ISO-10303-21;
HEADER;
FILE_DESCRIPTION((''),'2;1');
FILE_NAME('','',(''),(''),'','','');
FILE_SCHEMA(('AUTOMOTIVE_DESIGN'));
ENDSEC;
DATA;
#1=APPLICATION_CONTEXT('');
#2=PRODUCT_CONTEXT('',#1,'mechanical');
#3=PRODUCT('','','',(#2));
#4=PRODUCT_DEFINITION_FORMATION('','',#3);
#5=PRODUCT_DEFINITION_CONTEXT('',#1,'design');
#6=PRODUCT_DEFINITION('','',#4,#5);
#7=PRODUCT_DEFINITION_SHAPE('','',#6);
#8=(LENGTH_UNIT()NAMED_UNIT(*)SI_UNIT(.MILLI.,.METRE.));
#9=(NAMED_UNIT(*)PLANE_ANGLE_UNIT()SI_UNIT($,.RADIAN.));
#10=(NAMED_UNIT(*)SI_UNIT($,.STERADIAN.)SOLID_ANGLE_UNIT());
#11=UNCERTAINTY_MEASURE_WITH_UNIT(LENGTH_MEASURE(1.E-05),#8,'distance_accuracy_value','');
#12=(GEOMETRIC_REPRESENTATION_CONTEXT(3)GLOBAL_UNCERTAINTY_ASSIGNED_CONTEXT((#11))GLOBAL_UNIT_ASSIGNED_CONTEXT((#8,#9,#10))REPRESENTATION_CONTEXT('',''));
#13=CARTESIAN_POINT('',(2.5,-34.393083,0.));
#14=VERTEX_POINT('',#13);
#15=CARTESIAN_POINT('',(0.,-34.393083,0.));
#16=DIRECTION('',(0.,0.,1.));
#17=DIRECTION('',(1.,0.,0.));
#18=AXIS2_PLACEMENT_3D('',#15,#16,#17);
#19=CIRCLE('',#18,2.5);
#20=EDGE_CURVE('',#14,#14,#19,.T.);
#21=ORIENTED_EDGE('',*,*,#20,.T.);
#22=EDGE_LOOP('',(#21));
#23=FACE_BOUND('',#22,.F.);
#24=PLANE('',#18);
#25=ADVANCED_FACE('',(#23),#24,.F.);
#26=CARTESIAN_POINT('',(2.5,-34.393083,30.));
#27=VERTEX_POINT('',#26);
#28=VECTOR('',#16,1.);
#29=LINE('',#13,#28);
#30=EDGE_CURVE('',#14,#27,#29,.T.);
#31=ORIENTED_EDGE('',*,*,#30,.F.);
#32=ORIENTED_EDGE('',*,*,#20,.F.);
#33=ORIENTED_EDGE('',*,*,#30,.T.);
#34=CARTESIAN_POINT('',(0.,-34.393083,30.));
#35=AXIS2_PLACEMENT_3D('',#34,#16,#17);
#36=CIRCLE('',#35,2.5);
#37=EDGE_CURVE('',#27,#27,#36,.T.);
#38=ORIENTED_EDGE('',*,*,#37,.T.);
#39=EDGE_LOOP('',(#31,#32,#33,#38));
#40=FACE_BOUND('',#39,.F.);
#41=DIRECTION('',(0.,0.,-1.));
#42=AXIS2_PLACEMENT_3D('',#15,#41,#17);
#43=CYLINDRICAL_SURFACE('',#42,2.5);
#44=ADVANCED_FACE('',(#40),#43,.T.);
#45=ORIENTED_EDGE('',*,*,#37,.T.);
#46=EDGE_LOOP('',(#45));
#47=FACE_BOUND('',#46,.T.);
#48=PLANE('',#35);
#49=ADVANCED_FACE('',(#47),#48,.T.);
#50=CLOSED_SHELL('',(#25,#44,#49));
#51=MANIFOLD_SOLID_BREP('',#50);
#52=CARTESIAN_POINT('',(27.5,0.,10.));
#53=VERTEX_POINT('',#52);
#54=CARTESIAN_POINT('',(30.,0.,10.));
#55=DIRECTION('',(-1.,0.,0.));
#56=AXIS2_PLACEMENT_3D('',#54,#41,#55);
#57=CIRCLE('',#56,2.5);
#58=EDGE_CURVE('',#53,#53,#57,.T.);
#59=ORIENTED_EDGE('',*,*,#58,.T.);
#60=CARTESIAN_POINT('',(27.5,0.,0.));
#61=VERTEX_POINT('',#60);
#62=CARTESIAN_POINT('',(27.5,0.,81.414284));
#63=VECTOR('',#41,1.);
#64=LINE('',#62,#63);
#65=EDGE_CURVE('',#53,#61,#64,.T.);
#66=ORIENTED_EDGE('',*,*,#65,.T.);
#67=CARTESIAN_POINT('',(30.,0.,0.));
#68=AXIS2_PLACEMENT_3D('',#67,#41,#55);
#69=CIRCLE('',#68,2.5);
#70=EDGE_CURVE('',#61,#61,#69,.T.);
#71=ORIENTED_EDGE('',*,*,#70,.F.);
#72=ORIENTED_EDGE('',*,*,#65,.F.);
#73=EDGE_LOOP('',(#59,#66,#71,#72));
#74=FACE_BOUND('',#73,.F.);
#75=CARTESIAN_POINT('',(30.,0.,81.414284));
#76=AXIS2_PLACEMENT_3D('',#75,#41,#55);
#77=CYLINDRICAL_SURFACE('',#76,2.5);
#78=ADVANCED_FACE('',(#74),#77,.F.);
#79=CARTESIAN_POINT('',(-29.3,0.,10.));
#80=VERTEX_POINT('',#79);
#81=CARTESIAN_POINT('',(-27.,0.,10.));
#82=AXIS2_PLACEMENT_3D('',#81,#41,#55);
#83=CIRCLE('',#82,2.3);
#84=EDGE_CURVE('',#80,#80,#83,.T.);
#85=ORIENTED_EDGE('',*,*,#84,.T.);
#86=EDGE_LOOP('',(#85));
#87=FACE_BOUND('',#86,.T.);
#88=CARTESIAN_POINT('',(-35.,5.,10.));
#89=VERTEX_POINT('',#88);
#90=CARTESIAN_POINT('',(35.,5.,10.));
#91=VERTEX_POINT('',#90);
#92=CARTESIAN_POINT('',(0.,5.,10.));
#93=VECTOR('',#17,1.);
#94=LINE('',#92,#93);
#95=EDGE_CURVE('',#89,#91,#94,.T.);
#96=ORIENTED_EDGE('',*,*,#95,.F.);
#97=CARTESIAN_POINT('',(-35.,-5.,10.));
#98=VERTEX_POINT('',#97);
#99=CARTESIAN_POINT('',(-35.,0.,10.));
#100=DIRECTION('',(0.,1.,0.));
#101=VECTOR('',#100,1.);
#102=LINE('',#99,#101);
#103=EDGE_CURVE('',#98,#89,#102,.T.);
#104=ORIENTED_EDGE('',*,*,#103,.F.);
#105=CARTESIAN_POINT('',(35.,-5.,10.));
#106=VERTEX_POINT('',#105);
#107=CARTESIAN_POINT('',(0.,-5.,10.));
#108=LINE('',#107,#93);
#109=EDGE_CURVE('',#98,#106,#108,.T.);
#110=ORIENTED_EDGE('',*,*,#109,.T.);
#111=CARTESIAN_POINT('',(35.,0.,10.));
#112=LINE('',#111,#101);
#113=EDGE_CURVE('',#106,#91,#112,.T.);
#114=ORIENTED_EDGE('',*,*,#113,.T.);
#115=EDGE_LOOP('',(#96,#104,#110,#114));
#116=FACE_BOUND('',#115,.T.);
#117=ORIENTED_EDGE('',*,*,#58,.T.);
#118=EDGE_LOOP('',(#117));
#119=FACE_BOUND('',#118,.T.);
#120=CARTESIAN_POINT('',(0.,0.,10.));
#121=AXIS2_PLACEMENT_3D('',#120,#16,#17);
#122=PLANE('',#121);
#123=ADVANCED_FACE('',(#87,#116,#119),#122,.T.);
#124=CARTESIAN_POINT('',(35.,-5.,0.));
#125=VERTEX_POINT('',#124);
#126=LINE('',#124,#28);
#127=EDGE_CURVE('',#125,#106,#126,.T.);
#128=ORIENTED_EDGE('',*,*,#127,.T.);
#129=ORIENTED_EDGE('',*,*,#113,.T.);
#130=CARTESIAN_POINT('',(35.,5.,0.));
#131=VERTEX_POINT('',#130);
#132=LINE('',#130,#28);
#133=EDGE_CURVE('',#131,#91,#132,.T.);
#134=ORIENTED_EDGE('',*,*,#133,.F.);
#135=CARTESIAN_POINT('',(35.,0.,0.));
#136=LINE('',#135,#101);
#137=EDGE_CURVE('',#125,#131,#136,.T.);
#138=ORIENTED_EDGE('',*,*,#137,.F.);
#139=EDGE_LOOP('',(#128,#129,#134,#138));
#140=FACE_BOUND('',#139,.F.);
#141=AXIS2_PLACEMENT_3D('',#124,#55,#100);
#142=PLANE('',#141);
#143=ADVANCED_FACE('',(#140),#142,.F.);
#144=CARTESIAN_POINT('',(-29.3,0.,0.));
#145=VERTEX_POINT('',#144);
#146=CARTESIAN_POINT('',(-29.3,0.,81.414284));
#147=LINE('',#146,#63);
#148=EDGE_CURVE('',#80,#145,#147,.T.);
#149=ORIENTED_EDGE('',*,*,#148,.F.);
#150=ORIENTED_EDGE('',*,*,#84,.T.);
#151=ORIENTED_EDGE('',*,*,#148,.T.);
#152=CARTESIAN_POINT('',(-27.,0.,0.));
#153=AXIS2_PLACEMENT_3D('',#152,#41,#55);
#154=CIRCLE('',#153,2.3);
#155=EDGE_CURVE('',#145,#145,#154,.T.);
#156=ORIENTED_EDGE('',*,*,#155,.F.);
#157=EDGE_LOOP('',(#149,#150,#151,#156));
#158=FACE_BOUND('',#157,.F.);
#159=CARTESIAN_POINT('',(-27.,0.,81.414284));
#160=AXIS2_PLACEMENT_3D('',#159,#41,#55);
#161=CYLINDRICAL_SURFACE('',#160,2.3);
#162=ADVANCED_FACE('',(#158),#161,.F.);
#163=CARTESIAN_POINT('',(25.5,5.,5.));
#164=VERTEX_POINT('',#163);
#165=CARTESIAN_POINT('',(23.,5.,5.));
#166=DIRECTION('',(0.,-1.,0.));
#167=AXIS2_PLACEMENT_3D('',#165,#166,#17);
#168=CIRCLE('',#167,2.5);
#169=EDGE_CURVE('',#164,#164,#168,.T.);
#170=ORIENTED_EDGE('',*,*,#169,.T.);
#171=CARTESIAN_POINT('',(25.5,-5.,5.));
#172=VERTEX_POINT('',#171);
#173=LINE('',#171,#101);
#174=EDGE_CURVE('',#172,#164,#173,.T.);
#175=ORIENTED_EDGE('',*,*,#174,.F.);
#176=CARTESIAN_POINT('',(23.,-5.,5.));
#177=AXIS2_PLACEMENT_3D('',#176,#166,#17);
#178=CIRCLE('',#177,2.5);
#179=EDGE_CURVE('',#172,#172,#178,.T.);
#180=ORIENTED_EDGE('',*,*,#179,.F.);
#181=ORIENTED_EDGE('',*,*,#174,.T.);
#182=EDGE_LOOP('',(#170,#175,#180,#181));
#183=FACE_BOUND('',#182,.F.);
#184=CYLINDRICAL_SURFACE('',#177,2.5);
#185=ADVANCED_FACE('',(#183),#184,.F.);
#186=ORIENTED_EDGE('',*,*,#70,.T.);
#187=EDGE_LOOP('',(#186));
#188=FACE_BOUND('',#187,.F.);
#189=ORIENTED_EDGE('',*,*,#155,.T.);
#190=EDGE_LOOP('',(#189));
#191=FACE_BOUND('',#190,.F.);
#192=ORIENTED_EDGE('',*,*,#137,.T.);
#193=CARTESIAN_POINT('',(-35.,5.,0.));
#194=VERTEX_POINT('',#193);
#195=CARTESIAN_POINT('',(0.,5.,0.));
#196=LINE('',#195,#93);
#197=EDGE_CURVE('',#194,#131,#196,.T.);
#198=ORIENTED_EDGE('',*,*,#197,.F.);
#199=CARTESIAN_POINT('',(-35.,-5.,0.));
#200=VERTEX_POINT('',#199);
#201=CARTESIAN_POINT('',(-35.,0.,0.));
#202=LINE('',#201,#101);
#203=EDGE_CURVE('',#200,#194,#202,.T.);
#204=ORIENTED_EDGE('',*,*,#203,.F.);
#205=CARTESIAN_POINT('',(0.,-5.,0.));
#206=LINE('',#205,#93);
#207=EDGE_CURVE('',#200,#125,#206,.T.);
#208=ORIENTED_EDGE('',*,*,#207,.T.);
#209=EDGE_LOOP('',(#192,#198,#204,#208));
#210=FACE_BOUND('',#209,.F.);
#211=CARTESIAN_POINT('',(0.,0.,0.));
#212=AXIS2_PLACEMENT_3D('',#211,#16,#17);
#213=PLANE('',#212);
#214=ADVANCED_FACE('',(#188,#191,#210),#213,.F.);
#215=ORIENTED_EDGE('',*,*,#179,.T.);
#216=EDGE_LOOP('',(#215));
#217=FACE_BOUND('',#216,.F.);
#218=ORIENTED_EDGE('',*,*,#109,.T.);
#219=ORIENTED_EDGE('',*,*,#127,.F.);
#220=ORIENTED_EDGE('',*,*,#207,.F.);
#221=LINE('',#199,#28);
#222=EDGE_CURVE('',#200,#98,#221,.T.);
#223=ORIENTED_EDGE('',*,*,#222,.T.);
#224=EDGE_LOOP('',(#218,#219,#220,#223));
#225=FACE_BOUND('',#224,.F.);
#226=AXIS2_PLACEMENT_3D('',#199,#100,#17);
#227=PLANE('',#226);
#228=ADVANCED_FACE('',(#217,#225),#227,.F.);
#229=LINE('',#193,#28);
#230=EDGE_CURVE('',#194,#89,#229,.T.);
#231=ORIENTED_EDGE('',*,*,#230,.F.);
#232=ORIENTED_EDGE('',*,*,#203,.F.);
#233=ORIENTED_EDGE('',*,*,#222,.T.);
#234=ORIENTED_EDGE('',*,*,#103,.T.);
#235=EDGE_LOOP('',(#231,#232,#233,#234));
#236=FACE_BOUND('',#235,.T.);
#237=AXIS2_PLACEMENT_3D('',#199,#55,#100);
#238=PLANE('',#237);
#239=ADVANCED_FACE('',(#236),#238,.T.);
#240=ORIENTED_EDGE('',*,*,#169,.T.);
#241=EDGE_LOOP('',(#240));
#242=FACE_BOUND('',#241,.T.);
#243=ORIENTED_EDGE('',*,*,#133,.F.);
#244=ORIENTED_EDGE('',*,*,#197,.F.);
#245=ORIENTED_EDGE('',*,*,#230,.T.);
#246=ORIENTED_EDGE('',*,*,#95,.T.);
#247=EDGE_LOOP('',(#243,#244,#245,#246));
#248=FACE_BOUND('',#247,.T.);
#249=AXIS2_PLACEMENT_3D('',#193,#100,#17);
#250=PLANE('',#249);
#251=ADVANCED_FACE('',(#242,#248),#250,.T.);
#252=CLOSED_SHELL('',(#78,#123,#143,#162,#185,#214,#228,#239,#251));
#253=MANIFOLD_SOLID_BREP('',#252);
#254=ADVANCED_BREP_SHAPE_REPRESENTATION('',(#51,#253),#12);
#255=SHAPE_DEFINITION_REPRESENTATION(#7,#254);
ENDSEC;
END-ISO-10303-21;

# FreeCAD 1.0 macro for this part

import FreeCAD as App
import Part
import Sketcher

doc = App.newDocument("Part")
body = doc.addObject("PartDesign::Body", "Body")

# Sketch on XY plane
sketch1 = body.newObject("Sketcher::SketchObject", "Sketch")
sketch1.AttachmentSupport = (doc.getObject("XY_Plane"), [""])
sketch1.MapMode = "FlatFace"
sketch1.addGeometry([
    Part.LineSegment(App.Vector(-35, 5, 0), App.Vector(-35, -5, 0)),
    Part.LineSegment(App.Vector(-35, -5, 0), App.Vector(35, -5, 0)),
    Part.LineSegment(App.Vector(35, -5, 0), App.Vector(35, 5, 0)),
    Part.LineSegment(App.Vector(35, 5, 0), App.Vector(-35, 5, 0)),
], False)
sketch1.addConstraint([
    Sketcher.Constraint("Coincident", 0, 2, 1, 1),
    Sketcher.Constraint("Coincident", 1, 2, 2, 1),
    Sketcher.Constraint("Coincident", 2, 2, 3, 1),
    Sketcher.Constraint("Coincident", 3, 2, 0, 1),
    Sketcher.Constraint("Vertical", 0),
    Sketcher.Constraint("Horizontal", 1),
    Sketcher.Constraint("Vertical", 2),
    Sketcher.Constraint("Horizontal", 3),
    Sketcher.Constraint("Symmetric", 0, 2, 2, 2, -1, 1),
    Sketcher.Constraint("DistanceX", 1, 1, 1, 2, 70.0),
    Sketcher.Constraint("DistanceY", 0, 2, 0, 1, 10.0),
])
pad1 = body.newObject("PartDesign::Pad", "Pad")
pad1.Profile = sketch1
pad1.Length = 10

# Sketch on XZ plane
sketch2 = body.newObject("Sketcher::SketchObject", "Sketch001")
sketch2.AttachmentSupport = (doc.getObject("XZ_Plane"), [""])
sketch2.MapMode = "FlatFace"
sketch2.AttachmentOffset = App.Placement(App.Vector(0, 0, 5), App.Rotation())
sketch2.addGeometry(Part.Circle(App.Vector(23, 5, 0), App.Vector(0, 0, 1), 2.5), False)
sketch2.addConstraint([
    Sketcher.Constraint("Diameter", 0, 5.0),
    Sketcher.Constraint("DistanceX", -1, 1, 0, 3, 23.0),
    Sketcher.Constraint("DistanceY", -1, 1, 0, 3, 5.0),
])
pocket1 = body.newObject("PartDesign::Pocket", "Pocket")
pocket1.Profile = sketch2
pocket1.Length = 25

# Sketch on XY plane
sketch3 = body.newObject("Sketcher::SketchObject", "Sketch002")
sketch3.AttachmentSupport = (doc.getObject("XY_Plane"), [""])
sketch3.MapMode = "FlatFace"
sketch3.AttachmentOffset = App.Placement(App.Vector(0, 0, 10), App.Rotation())
sketch3.addGeometry(Part.Circle(App.Vector(30, 0, 0), App.Vector(0, 0, 1), 2.5), False)
sketch3.addConstraint([
    Sketcher.Constraint("PointOnObject", 0, 3, -1),
    Sketcher.Constraint("Diameter", 0, 5.0),
    Sketcher.Constraint("DistanceX", -1, 1, 0, 3, 30.0),
])
doc.recompute()
hole = body.newObject("PartDesign::Hole", "Hole")
hole.Profile = sketch3
hole.ThreadType = "None"
hole.Diameter = 5
hole.DepthType = "ThroughAll"

# Sketch on XY plane
sketch4 = body.newObject("Sketcher::SketchObject", "Sketch003")
sketch4.AttachmentSupport = (doc.getObject("XY_Plane"), [""])
sketch4.MapMode = "FlatFace"
sketch4.AttachmentOffset = App.Placement(App.Vector(0, 0, 10), App.Rotation())
sketch4.addGeometry(Part.Circle(App.Vector(-27, 0, 0), App.Vector(0, 0, 1), 2.3), False)
sketch4.addConstraint([
    Sketcher.Constraint("PointOnObject", 0, 3, -1),
    Sketcher.Constraint("Diameter", 0, 4.6),
    Sketcher.Constraint("DistanceX", 0, 3, -1, 1, 27.0),
])
doc.recompute()
hole2 = body.newObject("PartDesign::Hole", "Hole001")
hole2.Profile = sketch4
hole2.ThreadType = "None"
hole2.Diameter = 4.6
hole2.DepthType = "ThroughAll"
body2 = doc.addObject("PartDesign::Body", "Body001")

# Sketch on XY plane
sketch5 = body2.newObject("Sketcher::SketchObject", "Sketch004")
sketch5.AttachmentSupport = (doc.getObject("XY_Plane001"), [""])
sketch5.MapMode = "FlatFace"
sketch5.addGeometry(Part.Circle(App.Vector(0, -34.393083, 0), App.Vector(0, 0, 1), 2.5), False)
sketch5.addConstraint([
    Sketcher.Constraint("PointOnObject", 0, 3, -2),
    Sketcher.Constraint("Diameter", 0, 5.0),
    Sketcher.Constraint("DistanceY", 0, 3, -1, 1, 34.393083),
])
pad2 = body2.newObject("PartDesign::Pad", "Pad001")
pad2.Profile = sketch5
pad2.Length = 30

doc.recompute()
